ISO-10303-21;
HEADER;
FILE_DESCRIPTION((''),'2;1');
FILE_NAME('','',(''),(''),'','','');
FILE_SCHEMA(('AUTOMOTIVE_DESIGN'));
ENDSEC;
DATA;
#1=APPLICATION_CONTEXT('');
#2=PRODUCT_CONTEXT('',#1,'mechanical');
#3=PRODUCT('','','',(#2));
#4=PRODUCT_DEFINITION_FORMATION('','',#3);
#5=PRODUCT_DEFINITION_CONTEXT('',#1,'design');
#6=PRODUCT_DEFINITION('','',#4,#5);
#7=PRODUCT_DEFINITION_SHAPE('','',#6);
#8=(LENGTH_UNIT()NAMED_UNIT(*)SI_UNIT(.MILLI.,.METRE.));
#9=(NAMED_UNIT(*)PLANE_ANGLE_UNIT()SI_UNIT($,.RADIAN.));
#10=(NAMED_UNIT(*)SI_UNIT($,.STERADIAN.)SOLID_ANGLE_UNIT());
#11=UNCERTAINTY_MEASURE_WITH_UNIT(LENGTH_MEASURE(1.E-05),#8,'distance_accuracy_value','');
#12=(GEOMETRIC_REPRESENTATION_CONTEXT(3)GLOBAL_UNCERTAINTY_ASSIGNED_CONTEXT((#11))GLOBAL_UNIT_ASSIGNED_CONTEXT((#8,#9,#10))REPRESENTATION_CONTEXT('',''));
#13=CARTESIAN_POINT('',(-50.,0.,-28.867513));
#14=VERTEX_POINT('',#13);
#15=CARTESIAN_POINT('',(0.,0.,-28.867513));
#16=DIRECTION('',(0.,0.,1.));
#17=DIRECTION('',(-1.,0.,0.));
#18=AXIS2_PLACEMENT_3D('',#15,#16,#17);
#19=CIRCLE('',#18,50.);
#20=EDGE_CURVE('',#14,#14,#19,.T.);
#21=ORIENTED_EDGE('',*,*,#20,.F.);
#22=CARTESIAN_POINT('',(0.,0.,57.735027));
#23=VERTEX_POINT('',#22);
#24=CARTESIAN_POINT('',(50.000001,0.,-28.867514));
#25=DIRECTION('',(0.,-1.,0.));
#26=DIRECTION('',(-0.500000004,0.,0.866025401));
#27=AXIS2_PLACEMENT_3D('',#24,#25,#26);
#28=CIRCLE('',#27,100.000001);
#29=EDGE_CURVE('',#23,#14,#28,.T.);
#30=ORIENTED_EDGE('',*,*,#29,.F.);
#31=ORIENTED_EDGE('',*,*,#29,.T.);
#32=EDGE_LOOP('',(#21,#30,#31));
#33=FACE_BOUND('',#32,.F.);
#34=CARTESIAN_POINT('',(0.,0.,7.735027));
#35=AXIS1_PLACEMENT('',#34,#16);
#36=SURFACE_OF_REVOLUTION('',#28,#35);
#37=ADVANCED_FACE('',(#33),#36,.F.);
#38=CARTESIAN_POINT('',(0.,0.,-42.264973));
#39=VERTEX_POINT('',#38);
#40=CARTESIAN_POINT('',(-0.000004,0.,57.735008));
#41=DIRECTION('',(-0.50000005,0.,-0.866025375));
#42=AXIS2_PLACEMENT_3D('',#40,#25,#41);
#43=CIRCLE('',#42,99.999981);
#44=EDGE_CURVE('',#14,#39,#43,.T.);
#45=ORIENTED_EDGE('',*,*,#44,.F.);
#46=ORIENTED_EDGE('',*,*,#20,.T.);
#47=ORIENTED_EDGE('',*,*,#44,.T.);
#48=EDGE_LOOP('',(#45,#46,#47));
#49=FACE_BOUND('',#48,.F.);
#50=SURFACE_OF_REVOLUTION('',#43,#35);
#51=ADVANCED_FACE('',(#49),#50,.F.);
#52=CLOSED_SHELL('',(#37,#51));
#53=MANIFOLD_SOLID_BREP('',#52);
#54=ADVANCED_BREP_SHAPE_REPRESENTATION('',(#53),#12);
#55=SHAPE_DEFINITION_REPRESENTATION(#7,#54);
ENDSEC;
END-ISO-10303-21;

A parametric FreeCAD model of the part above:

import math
import FreeCAD as App
import Part
import Sketcher
from FreeCAD import Vector

doc = App.newDocument("Part")
body = doc.addObject("PartDesign::Body", "Body")

# Sketch on XZ plane
sketch1 = body.newObject("Sketcher::SketchObject", "Sketch")
sketch1.AttachmentSupport = (doc.getObject("XZ_Plane"), [""])
sketch1.MapMode = "FlatFace"
sketch1.addGeometry(Part.LineSegment(Vector(0, -42, 0), Vector(0, 58, 0)), False)
sketch1.addGeometry(Part.ArcOfCircle(Part.Circle(Vector(50, -29, 0), Vector(0, 0, 1), 100), math.radians(120), math.radians(180)), False)
sketch1.addGeometry(Part.ArcOfCircle(Part.Circle(Vector(0, 58, 0), Vector(0, 0, 1), 100), math.radians(-120), math.radians(-90)), False)
sketch1.addConstraint(Sketcher.Constraint("Coincident", 0, 2, 1, 1))
sketch1.addConstraint(Sketcher.Constraint("Coincident", 1, 2, 2, 1))
sketch1.addConstraint(Sketcher.Constraint("Coincident", 2, 2, 0, 1))
sketch1.addConstraint(Sketcher.Constraint("Vertical", 0))
sketch1.addConstraint(Sketcher.Constraint("PointOnObject", 0, 2, -2))
sketch1.addConstraint(Sketcher.Constraint("Radius", 1, 100.000001))
sketch1.addConstraint(Sketcher.Constraint("DistanceY", 0, 1, 0, 2, 100.0))
sketch1.addConstraint(Sketcher.Constraint("DistanceX", -1, 1, 1, 3, 50.000001))
sketch1.addConstraint(Sketcher.Constraint("Radius", 2, 99.999981))
sketch1.addConstraint(Sketcher.Constraint("DistanceY", -1, 1, 2, 3, 57.735008))
sketch1.addConstraint(Sketcher.Constraint("DistanceY", 1, 2, 2, 3, 86.602521))
revolution = body.newObject("PartDesign::Revolution", "Revolution")
revolution.Profile = sketch1
revolution.ReferenceAxis = (sketch1, ["V_Axis"])
revolution.Angle = 360

doc.recompute()
